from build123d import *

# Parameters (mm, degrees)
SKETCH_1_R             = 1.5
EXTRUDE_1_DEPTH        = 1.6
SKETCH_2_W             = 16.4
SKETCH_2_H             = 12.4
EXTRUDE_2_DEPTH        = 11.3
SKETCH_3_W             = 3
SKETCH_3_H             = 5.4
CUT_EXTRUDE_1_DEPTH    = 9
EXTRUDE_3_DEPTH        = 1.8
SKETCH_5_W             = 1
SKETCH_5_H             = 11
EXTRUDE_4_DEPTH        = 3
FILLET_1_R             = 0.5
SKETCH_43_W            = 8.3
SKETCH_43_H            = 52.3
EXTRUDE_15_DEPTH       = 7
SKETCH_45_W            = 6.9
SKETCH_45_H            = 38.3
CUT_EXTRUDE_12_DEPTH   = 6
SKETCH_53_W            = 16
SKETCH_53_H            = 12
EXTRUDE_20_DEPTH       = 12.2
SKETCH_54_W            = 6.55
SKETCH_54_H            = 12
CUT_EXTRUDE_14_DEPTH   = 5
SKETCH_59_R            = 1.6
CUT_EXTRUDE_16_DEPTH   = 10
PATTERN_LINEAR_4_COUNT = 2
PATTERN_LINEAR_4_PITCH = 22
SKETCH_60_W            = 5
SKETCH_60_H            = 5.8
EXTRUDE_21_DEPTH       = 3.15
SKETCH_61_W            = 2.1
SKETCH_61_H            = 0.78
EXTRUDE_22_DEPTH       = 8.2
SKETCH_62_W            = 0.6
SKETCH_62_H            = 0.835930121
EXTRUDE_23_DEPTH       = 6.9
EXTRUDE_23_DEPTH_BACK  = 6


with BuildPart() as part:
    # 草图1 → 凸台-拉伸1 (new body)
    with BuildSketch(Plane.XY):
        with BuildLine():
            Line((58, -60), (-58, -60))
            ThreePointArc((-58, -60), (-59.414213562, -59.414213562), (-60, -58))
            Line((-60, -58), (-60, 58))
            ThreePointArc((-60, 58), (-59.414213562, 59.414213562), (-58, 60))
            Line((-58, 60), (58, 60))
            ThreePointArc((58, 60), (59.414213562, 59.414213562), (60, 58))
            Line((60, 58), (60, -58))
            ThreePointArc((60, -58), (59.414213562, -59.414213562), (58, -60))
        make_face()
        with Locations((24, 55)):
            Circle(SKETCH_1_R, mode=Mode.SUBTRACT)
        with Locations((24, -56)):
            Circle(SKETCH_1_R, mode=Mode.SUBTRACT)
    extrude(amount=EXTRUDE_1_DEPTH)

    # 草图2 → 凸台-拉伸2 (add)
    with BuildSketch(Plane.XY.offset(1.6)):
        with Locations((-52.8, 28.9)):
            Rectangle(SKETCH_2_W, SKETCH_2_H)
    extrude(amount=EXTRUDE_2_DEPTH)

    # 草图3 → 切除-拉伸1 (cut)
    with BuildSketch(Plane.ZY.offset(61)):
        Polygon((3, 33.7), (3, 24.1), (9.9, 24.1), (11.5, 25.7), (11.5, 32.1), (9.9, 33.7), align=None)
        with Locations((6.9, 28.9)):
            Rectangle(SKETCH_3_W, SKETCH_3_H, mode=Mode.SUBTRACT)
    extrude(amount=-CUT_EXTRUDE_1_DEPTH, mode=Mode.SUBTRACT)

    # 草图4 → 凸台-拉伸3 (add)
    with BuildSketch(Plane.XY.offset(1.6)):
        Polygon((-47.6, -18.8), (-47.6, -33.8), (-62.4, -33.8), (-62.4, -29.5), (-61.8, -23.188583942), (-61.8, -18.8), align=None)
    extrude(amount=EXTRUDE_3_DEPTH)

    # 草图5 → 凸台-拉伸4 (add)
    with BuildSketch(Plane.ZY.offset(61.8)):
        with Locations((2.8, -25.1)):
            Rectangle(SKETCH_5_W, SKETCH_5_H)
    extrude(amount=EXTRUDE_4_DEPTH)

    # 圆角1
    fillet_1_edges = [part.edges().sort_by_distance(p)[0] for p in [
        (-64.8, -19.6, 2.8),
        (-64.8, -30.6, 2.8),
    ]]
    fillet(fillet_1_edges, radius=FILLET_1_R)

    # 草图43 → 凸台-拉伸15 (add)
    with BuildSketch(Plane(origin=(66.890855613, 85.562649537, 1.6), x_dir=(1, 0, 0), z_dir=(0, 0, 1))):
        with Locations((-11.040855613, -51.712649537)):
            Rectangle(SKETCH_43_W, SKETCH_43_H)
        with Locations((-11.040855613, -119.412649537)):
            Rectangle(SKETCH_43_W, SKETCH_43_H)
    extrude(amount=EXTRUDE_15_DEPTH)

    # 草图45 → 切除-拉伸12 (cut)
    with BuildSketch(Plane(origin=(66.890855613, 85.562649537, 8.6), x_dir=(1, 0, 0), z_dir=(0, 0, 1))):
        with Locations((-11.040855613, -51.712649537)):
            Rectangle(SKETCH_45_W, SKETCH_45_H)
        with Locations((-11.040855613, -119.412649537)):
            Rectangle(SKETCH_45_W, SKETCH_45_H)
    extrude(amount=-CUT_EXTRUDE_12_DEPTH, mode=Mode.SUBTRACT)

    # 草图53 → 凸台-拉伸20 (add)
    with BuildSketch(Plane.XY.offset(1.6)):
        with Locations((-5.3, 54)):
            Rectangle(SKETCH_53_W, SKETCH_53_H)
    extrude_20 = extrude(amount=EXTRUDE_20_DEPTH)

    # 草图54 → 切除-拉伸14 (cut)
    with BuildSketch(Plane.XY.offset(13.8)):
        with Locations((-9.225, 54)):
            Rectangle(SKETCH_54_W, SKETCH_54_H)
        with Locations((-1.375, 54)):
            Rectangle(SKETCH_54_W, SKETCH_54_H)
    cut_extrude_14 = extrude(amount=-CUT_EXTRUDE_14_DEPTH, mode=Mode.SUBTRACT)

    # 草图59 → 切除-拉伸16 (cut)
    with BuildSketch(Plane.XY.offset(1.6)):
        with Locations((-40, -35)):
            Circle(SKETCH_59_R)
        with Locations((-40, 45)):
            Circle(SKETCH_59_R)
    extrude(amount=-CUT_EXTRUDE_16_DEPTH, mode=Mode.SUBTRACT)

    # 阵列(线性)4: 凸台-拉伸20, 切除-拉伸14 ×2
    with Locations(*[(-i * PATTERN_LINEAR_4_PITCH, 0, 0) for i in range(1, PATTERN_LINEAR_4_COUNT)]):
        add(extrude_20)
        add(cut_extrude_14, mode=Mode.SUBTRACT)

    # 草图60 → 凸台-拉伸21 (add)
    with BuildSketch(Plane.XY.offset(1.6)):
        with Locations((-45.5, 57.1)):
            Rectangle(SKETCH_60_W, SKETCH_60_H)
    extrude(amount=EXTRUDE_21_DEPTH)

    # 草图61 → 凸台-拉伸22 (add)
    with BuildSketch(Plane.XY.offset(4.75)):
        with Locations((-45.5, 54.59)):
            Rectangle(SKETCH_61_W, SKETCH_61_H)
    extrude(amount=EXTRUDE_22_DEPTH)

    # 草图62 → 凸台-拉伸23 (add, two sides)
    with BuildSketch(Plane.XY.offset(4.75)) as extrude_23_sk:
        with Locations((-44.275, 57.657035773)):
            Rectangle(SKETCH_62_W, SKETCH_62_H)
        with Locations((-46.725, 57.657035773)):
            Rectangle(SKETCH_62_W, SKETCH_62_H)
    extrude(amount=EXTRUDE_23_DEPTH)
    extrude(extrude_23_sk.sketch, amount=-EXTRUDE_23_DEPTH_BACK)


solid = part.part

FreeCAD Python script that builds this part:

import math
import FreeCAD as App
import Part
import Sketcher
from FreeCAD import Vector
Q = App.Units.Quantity


def edges_at(feature, points):
    """Names of the edges that pass closest to the given points."""
    edges = feature.Shape.Edges
    near = lambda p: min(range(len(edges)), key=lambda i: edges[i].distToShape(Part.Vertex(*p))[0])
    return sorted({f"Edge{near(p) + 1}" for p in points})


def add_polygon(sketch, points):
    """Adds a closed chain of lines whose ends are joined by coincident constraints."""
    first, n = sketch.GeometryCount, len(points)
    for a, b in zip(points, points[1:] + points[:1]):
        sketch.addGeometry(Part.LineSegment(App.Vector(*a, 0), App.Vector(*b, 0)), False)
    for i in range(n):
        sketch.addConstraint(Sketcher.Constraint("Coincident", first + i, 2, first + (i + 1) % n, 1))

doc = App.newDocument("Part")
body = doc.addObject("PartDesign::Body", "Body")

# Sketch on XY plane
sketch1 = doc.addObject("Sketcher::SketchObject", "Sketch")
body.addObject(sketch1)
sketch1.AttachmentSupport = (doc.XY_Plane, [""])
sketch1.MapMode = "FlatFace"
sketch1.addGeometry([
    Part.LineSegment(Vector(-58, -60, 0), Vector(58, -60, 0)),  # 0
    Part.ArcOfCircle(Part.Circle(Vector(58, -58, 0), Vector(0, 0, 1), 2), math.radians(-90), math.radians(0)),  # 1
    Part.LineSegment(Vector(60, -58, 0), Vector(60, 58, 0)),  # 2
    Part.ArcOfCircle(Part.Circle(Vector(58, 58, 0), Vector(0, 0, 1), 2), math.radians(0), math.radians(90)),  # 3
    Part.LineSegment(Vector(58, 60, 0), Vector(-58, 60, 0)),  # 4
    Part.ArcOfCircle(Part.Circle(Vector(-58, 58, 0), Vector(0, 0, 1), 2), math.radians(90), math.radians(180)),  # 5
    Part.LineSegment(Vector(-60, 58, 0), Vector(-60, -58, 0)),  # 6
    Part.ArcOfCircle(Part.Circle(Vector(-58, -58, 0), Vector(0, 0, 1), 2), math.radians(-180), math.radians(-90)),  # 7
    Part.Circle(Vector(24, -56, 0), Vector(0, 0, 1), 1.5),  # 8
    Part.Circle(Vector(24, 55, 0), Vector(0, 0, 1), 1.5),  # 9
], False)
sketch1.addConstraint([
    Sketcher.Constraint("Tangent", 0, 2, 1, 1),
    Sketcher.Constraint("Tangent", 1, 2, 2, 1),
    Sketcher.Constraint("Tangent", 2, 2, 3, 1),
    Sketcher.Constraint("Tangent", 3, 2, 4, 1),
    Sketcher.Constraint("Tangent", 4, 2, 5, 1),
    Sketcher.Constraint("Tangent", 5, 2, 6, 1),
    Sketcher.Constraint("Tangent", 6, 2, 7, 1),
    Sketcher.Constraint("Tangent", 7, 2, 0, 1),
    Sketcher.Constraint("Horizontal", 0),
    Sketcher.Constraint("Vertical", 2),
    Sketcher.Constraint("Horizontal", 4),
    Sketcher.Constraint("Vertical", 6),
    Sketcher.Constraint("Equal", 1, 3),
    Sketcher.Constraint("Equal", 3, 5),
    Sketcher.Constraint("Equal", 5, 7),
    Sketcher.Constraint("Equal", 8, 9),
    Sketcher.Constraint("Symmetric", 1, 3, 5, 3, -1, 1),
    Sketcher.Constraint("Vertical", 8, 3, 9, 3),
    Sketcher.Constraint("Equal", 4, 2),
    Sketcher.Constraint("Diameter", 8, Q("3 mm")),
    Sketcher.Constraint("Radius", 1, Q("2 mm")),
    Sketcher.Constraint("DistanceX", 0, 1, 0, 2, Q("116 mm")),
    Sketcher.Constraint("DistanceX", -1, 1, 8, 3, Q("24 mm")),
    Sketcher.Constraint("DistanceY", 8, 3, -1, 1, Q("56 mm")),
    Sketcher.Constraint("DistanceY", -1, 1, 9, 3, Q("55 mm")),
])
pad1 = doc.addObject("PartDesign::Pad", "Pad")
body.addObject(pad1)
pad1.Profile = sketch1
pad1.Length = 1.6

# Sketch on XY plane
sketch2 = doc.addObject("Sketcher::SketchObject", "Sketch001")
body.addObject(sketch2)
sketch2.AttachmentSupport = (doc.XY_Plane, [""])
sketch2.MapMode = "FlatFace"
sketch2.AttachmentOffset = App.Placement(Vector(0, 0, 1.6), App.Rotation())
add_polygon(sketch2, [(-61, 35), (-61, 23), (-45, 23), (-45, 35)])  # lines 0-3
sketch2.addConstraint([
    Sketcher.Constraint("Vertical", 0),
    Sketcher.Constraint("Horizontal", 1),
    Sketcher.Constraint("Vertical", 2),
    Sketcher.Constraint("Horizontal", 3),
    Sketcher.Constraint("DistanceX", 1, 1, 1, 2, Q("16.4 mm")),
    Sketcher.Constraint("DistanceY", 0, 2, 0, 1, Q("12.4 mm")),
    Sketcher.Constraint("DistanceX", 0, 2, -1, 1, Q("61 mm")),
    Sketcher.Constraint("DistanceY", -1, 1, 0, 2, Q("22.7 mm")),
])
pad2 = doc.addObject("PartDesign::Pad", "Pad001")
body.addObject(pad2)
pad2.Profile = sketch2
pad2.Length = 11.3

# Sketch on YZ plane
sketch3 = doc.addObject("Sketcher::SketchObject", "Sketch002")
body.addObject(sketch3)
sketch3.AttachmentSupport = (doc.YZ_Plane, [""])
sketch3.MapMode = "FlatFace"
sketch3.AttachmentOffset = App.Placement(Vector(0, 0, -61), App.Rotation())
add_polygon(sketch3, [(33.7, 3), (24.1, 3), (24.1, 9.9), (25.7, 11.5), (32.1, 11.5), (33.7, 9.9)])  # lines 0-5
add_polygon(sketch3, [(26.2, 8.4), (26.2, 5.4), (31.6, 5.4), (31.6, 8.4)])  # lines 6-9
sketch3.addConstraint([
    Sketcher.Constraint("Horizontal", 0),
    Sketcher.Constraint("Vertical", 1),
    Sketcher.Constraint("Horizontal", 3),
    Sketcher.Constraint("Vertical", 5),
    Sketcher.Constraint("Vertical", 6),
    Sketcher.Constraint("Horizontal", 7),
    Sketcher.Constraint("Vertical", 8),
    Sketcher.Constraint("Horizontal", 9),
    Sketcher.Constraint("Perpendicular", 2, 4),
    Sketcher.Constraint("Horizontal", 1, 2, 4, 2),
    Sketcher.Constraint("Equal", 2, 4),
    Sketcher.Constraint("DistanceY", 6, 2, 6, 1, Q("3 mm")),
    Sketcher.Constraint("DistanceX", 0, 2, 0, 1, Q("9.6 mm")),
    Sketcher.Constraint("DistanceX", 3, 1, 3, 2, Q("6.4 mm")),
    Sketcher.Constraint("DistanceX", 7, 1, 7, 2, Q("5.4 mm")),
    Sketcher.Constraint("DistanceY", 1, 1, 1, 2, Q("6.9 mm")),
    Sketcher.Constraint("DistanceY", -1, 1, 0, 2, Q("3 mm")),
    Sketcher.Constraint("DistanceX", -1, 1, 0, 2, Q("24.1 mm")),
    Sketcher.Constraint("DistanceX", -1, 1, 6, 2, Q("26.2 mm")),
    Sketcher.Constraint("DistanceY", -1, 1, 6, 2, Q("5.4 mm")),
])
pocket1 = doc.addObject("PartDesign::Pocket", "Pocket")
body.addObject(pocket1)
pocket1.Profile = sketch3
pocket1.Length = 9
pocket1.Reversed = True

# Sketch on XY plane
sketch4 = doc.addObject("Sketcher::SketchObject", "Sketch003")
body.addObject(sketch4)
sketch4.AttachmentSupport = (doc.XY_Plane, [""])
sketch4.MapMode = "FlatFace"
sketch4.AttachmentOffset = App.Placement(Vector(0, 0, 1.6), App.Rotation())
add_polygon(sketch4, [(-47.6, -33.8), (-47.6, -18.8), (-61.8, -18.8), (-61.8, -23.2), (-62.4, -29.5), (-62.4, -33.8)])  # lines 0-5
sketch4.addConstraint([
    Sketcher.Constraint("Vertical", 0),
    Sketcher.Constraint("Horizontal", 1),
    Sketcher.Constraint("Vertical", 2),
    Sketcher.Constraint("Vertical", 4),
    Sketcher.Constraint("Horizontal", 5),
    Sketcher.Constraint("DistanceY", 0, 1, 0, 2, Q("15 mm")),
    Sketcher.Constraint("DistanceX", 1, 2, 1, 1, Q("14.2 mm")),
    Sketcher.Constraint("DistanceX", 5, 1, 5, 2, Q("14.8 mm")),
    Sketcher.Constraint("DistanceY", 4, 2, 4, 1, Q("4.3 mm")),
    Sketcher.Constraint("DistanceX", 0, 2, -1, 1, Q("47.6 mm")),
    Sketcher.Constraint("DistanceY", 0, 2, -1, 1, Q("18.8 mm")),
    Sketcher.Constraint("Distance", 3, Q("6.339872 mm")),
])
pad3 = doc.addObject("PartDesign::Pad", "Pad002")
body.addObject(pad3)
pad3.Profile = sketch4
pad3.Length = 1.8

# Sketch on YZ plane
sketch5 = doc.addObject("Sketcher::SketchObject", "Sketch004")
body.addObject(sketch5)
sketch5.AttachmentSupport = (doc.YZ_Plane, [""])
sketch5.MapMode = "FlatFace"
sketch5.AttachmentOffset = App.Placement(Vector(0, 0, -61.8), App.Rotation())
add_polygon(sketch5, [(-19.6, 2.3), (-30.6, 2.3), (-30.6, 3.3), (-19.6, 3.3)])  # lines 0-3
sketch5.addConstraint([
    Sketcher.Constraint("Horizontal", 0),
    Sketcher.Constraint("Vertical", 1),
    Sketcher.Constraint("Horizontal", 2),
    Sketcher.Constraint("Vertical", 3),
    Sketcher.Constraint("DistanceX", 0, 2, 0, 1, Q("11 mm")),
    Sketcher.Constraint("DistanceY", 1, 1, 1, 2, Q("1 mm")),
    Sketcher.Constraint("DistanceX", 0, 2, -1, 1, Q("30.6 mm")),
    Sketcher.Constraint("DistanceY", -1, 1, 0, 2, Q("2.3 mm")),
])
pad4 = doc.addObject("PartDesign::Pad", "Pad003")
body.addObject(pad4)
pad4.Profile = sketch5
pad4.Length = 3
pad4.Reversed = True
doc.recompute()

fillet = doc.addObject("PartDesign::Fillet", "Fillet")
body.addObject(fillet)
fillet.Base = (pad4, edges_at(pad4, [(-64.8, -19.6, 2.8), (-64.8, -30.6, 2.8)]))
fillet.Radius = 0.5

# Sketch on XY plane
sketch6 = doc.addObject("Sketcher::SketchObject", "Sketch005")
body.addObject(sketch6)
sketch6.AttachmentSupport = (doc.XY_Plane, [""])
sketch6.MapMode = "FlatFace"
sketch6.AttachmentOffset = App.Placement(Vector(0, 0, 1.6), App.Rotation())
add_polygon(sketch6, [(52, 60), (52, 8), (60, 8), (60, 60)])  # lines 0-3
add_polygon(sketch6, [(52, -8), (52, -60), (60, -60), (60, -8)])  # lines 4-7
sketch6.addConstraint([
    Sketcher.Constraint("Vertical", 0),
    Sketcher.Constraint("Horizontal", 1),
    Sketcher.Constraint("Vertical", 2),
    Sketcher.Constraint("Horizontal", 3),
    Sketcher.Constraint("Vertical", 4),
    Sketcher.Constraint("Horizontal", 5),
    Sketcher.Constraint("Vertical", 6),
    Sketcher.Constraint("Horizontal", 7),
    Sketcher.Constraint("Symmetric", 3, 2, 4, 2, -1),
    Sketcher.Constraint("Symmetric", 1, 2, 6, 2, -1),
    Sketcher.Constraint("DistanceX", 1, 1, 1, 2, Q("8.3 mm")),
    Sketcher.Constraint("DistanceY", 0, 2, 0, 1, Q("52.3 mm")),
    Sketcher.Constraint("DistanceX", -1, 1, 1, 2, Q("60 mm")),
    Sketcher.Constraint("DistanceY", -1, 1, 2, 2, Q("60 mm")),
])
pad5 = doc.addObject("PartDesign::Pad", "Pad004")
body.addObject(pad5)
pad5.Profile = sketch6
pad5.Length = 7

# Sketch on XY plane
sketch7 = doc.addObject("Sketcher::SketchObject", "Sketch006")
body.addObject(sketch7)
sketch7.AttachmentSupport = (doc.XY_Plane, [""])
sketch7.MapMode = "FlatFace"
sketch7.AttachmentOffset = App.Placement(Vector(0, 0, 8.6), App.Rotation())
add_polygon(sketch7, [(52, 53), (52, 15), (59, 15), (59, 53)])  # lines 0-3
add_polygon(sketch7, [(52, -15), (52, -53), (59, -53), (59, -15)])  # lines 4-7
sketch7.addConstraint([
    Sketcher.Constraint("Vertical", 0),
    Sketcher.Constraint("Horizontal", 1),
    Sketcher.Constraint("Vertical", 2),
    Sketcher.Constraint("Horizontal", 3),
    Sketcher.Constraint("Vertical", 4),
    Sketcher.Constraint("Horizontal", 5),
    Sketcher.Constraint("Vertical", 6),
    Sketcher.Constraint("Horizontal", 7),
    Sketcher.Constraint("Symmetric", 3, 2, 4, 2, -1),
    Sketcher.Constraint("Symmetric", 1, 2, 6, 2, -1),
    Sketcher.Constraint("DistanceX", 1, 1, 1, 2, Q("6.9 mm")),
    Sketcher.Constraint("DistanceY", 0, 2, 0, 1, Q("38.3 mm")),
    Sketcher.Constraint("DistanceY", -1, 1, 2, 2, Q("53 mm")),
    Sketcher.Constraint("DistanceX", -1, 1, 0, 2, Q("52.4 mm")),
])
pocket2 = doc.addObject("PartDesign::Pocket", "Pocket001")
body.addObject(pocket2)
pocket2.Profile = sketch7
pocket2.Length = 6

# Sketch on XY plane
sketch8 = doc.addObject("Sketcher::SketchObject", "Sketch007")
body.addObject(sketch8)
sketch8.AttachmentSupport = (doc.XY_Plane, [""])
sketch8.MapMode = "FlatFace"
sketch8.AttachmentOffset = App.Placement(Vector(0, 0, 1.6), App.Rotation())
add_polygon(sketch8, [(-13, 60), (-13, 48), (3, 48), (3, 60)])  # lines 0-3
sketch8.addConstraint([
    Sketcher.Constraint("Vertical", 0),
    Sketcher.Constraint("Horizontal", 1),
    Sketcher.Constraint("Vertical", 2),
    Sketcher.Constraint("Horizontal", 3),
    Sketcher.Constraint("DistanceX", 1, 1, 1, 2, Q("16 mm")),
    Sketcher.Constraint("DistanceY", 0, 2, 0, 1, Q("12 mm")),
    Sketcher.Constraint("DistanceY", -1, 1, 0, 2, Q("48 mm")),
    Sketcher.Constraint("DistanceX", 0, 2, -1, 1, Q("13.3 mm")),
])
pad6 = doc.addObject("PartDesign::Pad", "Pad005")
body.addObject(pad6)
pad6.Profile = sketch8
pad6.Length = 12.2

# Sketch on XY plane
sketch9 = doc.addObject("Sketcher::SketchObject", "Sketch008")
body.addObject(sketch9)
sketch9.AttachmentSupport = (doc.XY_Plane, [""])
sketch9.MapMode = "FlatFace"
sketch9.AttachmentOffset = App.Placement(Vector(0, 0, 13.8), App.Rotation())
add_polygon(sketch9, [(-12, 60), (-12, 48), (-6, 48), (-6, 60)])  # lines 0-3
add_polygon(sketch9, [(-5, 60), (-5, 48), (2, 48), (2, 60)])  # lines 4-7
sketch9.addConstraint([
    Sketcher.Constraint("Vertical", 0),
    Sketcher.Constraint("Horizontal", 1),
    Sketcher.Constraint("Vertical", 2),
    Sketcher.Constraint("Horizontal", 3),
    Sketcher.Constraint("Vertical", 4),
    Sketcher.Constraint("Horizontal", 5),
    Sketcher.Constraint("Vertical", 6),
    Sketcher.Constraint("Horizontal", 7),
    Sketcher.Constraint("Horizontal", 1, 2, 4, 2),
    Sketcher.Constraint("Horizontal", 3, 2, 6, 2),
    Sketcher.Constraint("Equal", 3, 5),
    Sketcher.Constraint("DistanceY", 0, 2, 0, 1, Q("12 mm")),
    Sketcher.Constraint("DistanceY", -1, 1, 0, 2, Q("48 mm")),
    Sketcher.Constraint("DistanceX", 1, 1, 1, 2, Q("6.55 mm")),
    Sketcher.Constraint("DistanceX", 0, 2, -1, 1, Q("12.5 mm")),
    Sketcher.Constraint("DistanceX", -1, 1, 5, 2, Q("1.9 mm")),
])
pocket3 = doc.addObject("PartDesign::Pocket", "Pocket002")
body.addObject(pocket3)
pocket3.Profile = sketch9
pocket3.Length = 5

# Sketch on XY plane
sketch10 = doc.addObject("Sketcher::SketchObject", "Sketch009")
body.addObject(sketch10)
sketch10.AttachmentSupport = (doc.XY_Plane, [""])
sketch10.MapMode = "FlatFace"
sketch10.AttachmentOffset = App.Placement(Vector(0, 0, 1.6), App.Rotation())
sketch10.addGeometry([
    Part.Circle(Vector(-40, -35, 0), Vector(0, 0, 1), 1.6),
    Part.Circle(Vector(-40, 45, 0), Vector(0, 0, 1), 1.6),
], False)
sketch10.addConstraint([
    Sketcher.Constraint("Equal", 0, 1),
    Sketcher.Constraint("Vertical", 0, 3, 1, 3),
    Sketcher.Constraint("Diameter", 0, Q("3.2 mm")),
    Sketcher.Constraint("DistanceX", 0, 3, -1, 1, Q("40 mm")),
    Sketcher.Constraint("DistanceY", 0, 3, -1, 1, Q("35 mm")),
    Sketcher.Constraint("DistanceY", -1, 1, 1, 3, Q("45 mm")),
])
pocket4 = doc.addObject("PartDesign::Pocket", "Pocket003")
body.addObject(pocket4)
pocket4.Profile = sketch10
pocket4.Length = 10
doc.recompute()

linearpattern = doc.addObject("PartDesign::LinearPattern", "LinearPattern")
body.addObject(linearpattern)
linearpattern.Originals = [pad6, pocket3]
linearpattern.Direction = (doc.X_Axis, [""])
linearpattern.Mode = "offset"
linearpattern.Offset = 22
linearpattern.Occurrences = 2
linearpattern.Reversed = True
body.Tip = linearpattern

# Sketch on XY plane
sketch11 = doc.addObject("Sketcher::SketchObject", "Sketch010")
body.addObject(sketch11)
sketch11.AttachmentSupport = (doc.XY_Plane, [""])
sketch11.MapMode = "FlatFace"
sketch11.AttachmentOffset = App.Placement(Vector(0, 0, 1.6), App.Rotation())
add_polygon(sketch11, [(-48, 60), (-48, 54), (-43, 54), (-43, 60)])  # lines 0-3
sketch11.addConstraint([
    Sketcher.Constraint("Vertical", 0),
    Sketcher.Constraint("Horizontal", 1),
    Sketcher.Constraint("Vertical", 2),
    Sketcher.Constraint("Horizontal", 3),
    Sketcher.Constraint("DistanceX", 1, 1, 1, 2, Q("5 mm")),
    Sketcher.Constraint("DistanceY", 0, 2, 0, 1, Q("5.8 mm")),
    Sketcher.Constraint("DistanceX", 0, 2, -1, 1, Q("48 mm")),
    Sketcher.Constraint("DistanceY", -1, 1, 2, 2, Q("60 mm")),
])
pad7 = doc.addObject("PartDesign::Pad", "Pad006")
body.addObject(pad7)
pad7.Profile = sketch11
pad7.Length = 3.15

# Sketch on XY plane
sketch12 = doc.addObject("Sketcher::SketchObject", "Sketch011")
body.addObject(sketch12)
sketch12.AttachmentSupport = (doc.XY_Plane, [""])
sketch12.MapMode = "FlatFace"
sketch12.AttachmentOffset = App.Placement(Vector(0, 0, 4.75), App.Rotation())
add_polygon(sketch12, [(-46.5, 55), (-46.5, 54.2), (-44.5, 54.2), (-44.5, 55)])  # lines 0-3
sketch12.addConstraint([
    Sketcher.Constraint("Vertical", 0),
    Sketcher.Constraint("Horizontal", 1),
    Sketcher.Constraint("Vertical", 2),
    Sketcher.Constraint("Horizontal", 3),
    Sketcher.Constraint("DistanceX", 1, 1, 1, 2, Q("2.1 mm")),
    Sketcher.Constraint("DistanceY", 0, 2, 0, 1, Q("0.78 mm")),
    Sketcher.Constraint("DistanceY", -1, 1, 0, 2, Q("54.2 mm")),
    Sketcher.Constraint("DistanceX", 0, 2, -1, 1, Q("46.55 mm")),
])
pad8 = doc.addObject("PartDesign::Pad", "Pad007")
body.addObject(pad8)
pad8.Profile = sketch12
pad8.Length = 8.2

# Sketch on XY plane
sketch13 = doc.addObject("Sketcher::SketchObject", "Sketch012")
body.addObject(sketch13)
sketch13.AttachmentSupport = (doc.XY_Plane, [""])
sketch13.MapMode = "FlatFace"
sketch13.AttachmentOffset = App.Placement(Vector(0, 0, 4.75), App.Rotation())
add_polygon(sketch13, [(-44.6, 58.1), (-44.6, 57.2), (-44, 57.2), (-44, 58.1)])  # lines 0-3
add_polygon(sketch13, [(-47, 58.1), (-47, 57.2), (-46.4, 57.2), (-46.4, 58.1)])  # lines 4-7
sketch13.addConstraint([
    Sketcher.Constraint("Vertical", 0),
    Sketcher.Constraint("Horizontal", 1),
    Sketcher.Constraint("Vertical", 2),
    Sketcher.Constraint("Horizontal", 3),
    Sketcher.Constraint("Vertical", 4),
    Sketcher.Constraint("Horizontal", 5),
    Sketcher.Constraint("Vertical", 6),
    Sketcher.Constraint("Horizontal", 7),
    Sketcher.Constraint("Horizontal", 1, 2, 4, 2),
    Sketcher.Constraint("Horizontal", 3, 2, 6, 2),
    Sketcher.Constraint("Equal", 3, 5),
    Sketcher.Constraint("DistanceX", 1, 1, 1, 2, Q("0.6 mm")),
    Sketcher.Constraint("DistanceX", 4, 2, 0, 2, Q("2.45 mm")),
    Sketcher.Constraint("DistanceX", 0, 2, -1, 1, Q("44.575 mm")),
    Sketcher.Constraint("DistanceY", -1, 1, 2, 2, Q("58.075001 mm")),
    Sketcher.Constraint("DistanceY", 0, 2, 0, 1, Q("0.83593 mm")),
])
pad9 = doc.addObject("PartDesign::Pad", "Pad008")
body.addObject(pad9)
pad9.Profile = sketch13
pad9.Type = "TwoLengths"
pad9.Length = 6.9
pad9.Length2 = 6

doc.recompute()
